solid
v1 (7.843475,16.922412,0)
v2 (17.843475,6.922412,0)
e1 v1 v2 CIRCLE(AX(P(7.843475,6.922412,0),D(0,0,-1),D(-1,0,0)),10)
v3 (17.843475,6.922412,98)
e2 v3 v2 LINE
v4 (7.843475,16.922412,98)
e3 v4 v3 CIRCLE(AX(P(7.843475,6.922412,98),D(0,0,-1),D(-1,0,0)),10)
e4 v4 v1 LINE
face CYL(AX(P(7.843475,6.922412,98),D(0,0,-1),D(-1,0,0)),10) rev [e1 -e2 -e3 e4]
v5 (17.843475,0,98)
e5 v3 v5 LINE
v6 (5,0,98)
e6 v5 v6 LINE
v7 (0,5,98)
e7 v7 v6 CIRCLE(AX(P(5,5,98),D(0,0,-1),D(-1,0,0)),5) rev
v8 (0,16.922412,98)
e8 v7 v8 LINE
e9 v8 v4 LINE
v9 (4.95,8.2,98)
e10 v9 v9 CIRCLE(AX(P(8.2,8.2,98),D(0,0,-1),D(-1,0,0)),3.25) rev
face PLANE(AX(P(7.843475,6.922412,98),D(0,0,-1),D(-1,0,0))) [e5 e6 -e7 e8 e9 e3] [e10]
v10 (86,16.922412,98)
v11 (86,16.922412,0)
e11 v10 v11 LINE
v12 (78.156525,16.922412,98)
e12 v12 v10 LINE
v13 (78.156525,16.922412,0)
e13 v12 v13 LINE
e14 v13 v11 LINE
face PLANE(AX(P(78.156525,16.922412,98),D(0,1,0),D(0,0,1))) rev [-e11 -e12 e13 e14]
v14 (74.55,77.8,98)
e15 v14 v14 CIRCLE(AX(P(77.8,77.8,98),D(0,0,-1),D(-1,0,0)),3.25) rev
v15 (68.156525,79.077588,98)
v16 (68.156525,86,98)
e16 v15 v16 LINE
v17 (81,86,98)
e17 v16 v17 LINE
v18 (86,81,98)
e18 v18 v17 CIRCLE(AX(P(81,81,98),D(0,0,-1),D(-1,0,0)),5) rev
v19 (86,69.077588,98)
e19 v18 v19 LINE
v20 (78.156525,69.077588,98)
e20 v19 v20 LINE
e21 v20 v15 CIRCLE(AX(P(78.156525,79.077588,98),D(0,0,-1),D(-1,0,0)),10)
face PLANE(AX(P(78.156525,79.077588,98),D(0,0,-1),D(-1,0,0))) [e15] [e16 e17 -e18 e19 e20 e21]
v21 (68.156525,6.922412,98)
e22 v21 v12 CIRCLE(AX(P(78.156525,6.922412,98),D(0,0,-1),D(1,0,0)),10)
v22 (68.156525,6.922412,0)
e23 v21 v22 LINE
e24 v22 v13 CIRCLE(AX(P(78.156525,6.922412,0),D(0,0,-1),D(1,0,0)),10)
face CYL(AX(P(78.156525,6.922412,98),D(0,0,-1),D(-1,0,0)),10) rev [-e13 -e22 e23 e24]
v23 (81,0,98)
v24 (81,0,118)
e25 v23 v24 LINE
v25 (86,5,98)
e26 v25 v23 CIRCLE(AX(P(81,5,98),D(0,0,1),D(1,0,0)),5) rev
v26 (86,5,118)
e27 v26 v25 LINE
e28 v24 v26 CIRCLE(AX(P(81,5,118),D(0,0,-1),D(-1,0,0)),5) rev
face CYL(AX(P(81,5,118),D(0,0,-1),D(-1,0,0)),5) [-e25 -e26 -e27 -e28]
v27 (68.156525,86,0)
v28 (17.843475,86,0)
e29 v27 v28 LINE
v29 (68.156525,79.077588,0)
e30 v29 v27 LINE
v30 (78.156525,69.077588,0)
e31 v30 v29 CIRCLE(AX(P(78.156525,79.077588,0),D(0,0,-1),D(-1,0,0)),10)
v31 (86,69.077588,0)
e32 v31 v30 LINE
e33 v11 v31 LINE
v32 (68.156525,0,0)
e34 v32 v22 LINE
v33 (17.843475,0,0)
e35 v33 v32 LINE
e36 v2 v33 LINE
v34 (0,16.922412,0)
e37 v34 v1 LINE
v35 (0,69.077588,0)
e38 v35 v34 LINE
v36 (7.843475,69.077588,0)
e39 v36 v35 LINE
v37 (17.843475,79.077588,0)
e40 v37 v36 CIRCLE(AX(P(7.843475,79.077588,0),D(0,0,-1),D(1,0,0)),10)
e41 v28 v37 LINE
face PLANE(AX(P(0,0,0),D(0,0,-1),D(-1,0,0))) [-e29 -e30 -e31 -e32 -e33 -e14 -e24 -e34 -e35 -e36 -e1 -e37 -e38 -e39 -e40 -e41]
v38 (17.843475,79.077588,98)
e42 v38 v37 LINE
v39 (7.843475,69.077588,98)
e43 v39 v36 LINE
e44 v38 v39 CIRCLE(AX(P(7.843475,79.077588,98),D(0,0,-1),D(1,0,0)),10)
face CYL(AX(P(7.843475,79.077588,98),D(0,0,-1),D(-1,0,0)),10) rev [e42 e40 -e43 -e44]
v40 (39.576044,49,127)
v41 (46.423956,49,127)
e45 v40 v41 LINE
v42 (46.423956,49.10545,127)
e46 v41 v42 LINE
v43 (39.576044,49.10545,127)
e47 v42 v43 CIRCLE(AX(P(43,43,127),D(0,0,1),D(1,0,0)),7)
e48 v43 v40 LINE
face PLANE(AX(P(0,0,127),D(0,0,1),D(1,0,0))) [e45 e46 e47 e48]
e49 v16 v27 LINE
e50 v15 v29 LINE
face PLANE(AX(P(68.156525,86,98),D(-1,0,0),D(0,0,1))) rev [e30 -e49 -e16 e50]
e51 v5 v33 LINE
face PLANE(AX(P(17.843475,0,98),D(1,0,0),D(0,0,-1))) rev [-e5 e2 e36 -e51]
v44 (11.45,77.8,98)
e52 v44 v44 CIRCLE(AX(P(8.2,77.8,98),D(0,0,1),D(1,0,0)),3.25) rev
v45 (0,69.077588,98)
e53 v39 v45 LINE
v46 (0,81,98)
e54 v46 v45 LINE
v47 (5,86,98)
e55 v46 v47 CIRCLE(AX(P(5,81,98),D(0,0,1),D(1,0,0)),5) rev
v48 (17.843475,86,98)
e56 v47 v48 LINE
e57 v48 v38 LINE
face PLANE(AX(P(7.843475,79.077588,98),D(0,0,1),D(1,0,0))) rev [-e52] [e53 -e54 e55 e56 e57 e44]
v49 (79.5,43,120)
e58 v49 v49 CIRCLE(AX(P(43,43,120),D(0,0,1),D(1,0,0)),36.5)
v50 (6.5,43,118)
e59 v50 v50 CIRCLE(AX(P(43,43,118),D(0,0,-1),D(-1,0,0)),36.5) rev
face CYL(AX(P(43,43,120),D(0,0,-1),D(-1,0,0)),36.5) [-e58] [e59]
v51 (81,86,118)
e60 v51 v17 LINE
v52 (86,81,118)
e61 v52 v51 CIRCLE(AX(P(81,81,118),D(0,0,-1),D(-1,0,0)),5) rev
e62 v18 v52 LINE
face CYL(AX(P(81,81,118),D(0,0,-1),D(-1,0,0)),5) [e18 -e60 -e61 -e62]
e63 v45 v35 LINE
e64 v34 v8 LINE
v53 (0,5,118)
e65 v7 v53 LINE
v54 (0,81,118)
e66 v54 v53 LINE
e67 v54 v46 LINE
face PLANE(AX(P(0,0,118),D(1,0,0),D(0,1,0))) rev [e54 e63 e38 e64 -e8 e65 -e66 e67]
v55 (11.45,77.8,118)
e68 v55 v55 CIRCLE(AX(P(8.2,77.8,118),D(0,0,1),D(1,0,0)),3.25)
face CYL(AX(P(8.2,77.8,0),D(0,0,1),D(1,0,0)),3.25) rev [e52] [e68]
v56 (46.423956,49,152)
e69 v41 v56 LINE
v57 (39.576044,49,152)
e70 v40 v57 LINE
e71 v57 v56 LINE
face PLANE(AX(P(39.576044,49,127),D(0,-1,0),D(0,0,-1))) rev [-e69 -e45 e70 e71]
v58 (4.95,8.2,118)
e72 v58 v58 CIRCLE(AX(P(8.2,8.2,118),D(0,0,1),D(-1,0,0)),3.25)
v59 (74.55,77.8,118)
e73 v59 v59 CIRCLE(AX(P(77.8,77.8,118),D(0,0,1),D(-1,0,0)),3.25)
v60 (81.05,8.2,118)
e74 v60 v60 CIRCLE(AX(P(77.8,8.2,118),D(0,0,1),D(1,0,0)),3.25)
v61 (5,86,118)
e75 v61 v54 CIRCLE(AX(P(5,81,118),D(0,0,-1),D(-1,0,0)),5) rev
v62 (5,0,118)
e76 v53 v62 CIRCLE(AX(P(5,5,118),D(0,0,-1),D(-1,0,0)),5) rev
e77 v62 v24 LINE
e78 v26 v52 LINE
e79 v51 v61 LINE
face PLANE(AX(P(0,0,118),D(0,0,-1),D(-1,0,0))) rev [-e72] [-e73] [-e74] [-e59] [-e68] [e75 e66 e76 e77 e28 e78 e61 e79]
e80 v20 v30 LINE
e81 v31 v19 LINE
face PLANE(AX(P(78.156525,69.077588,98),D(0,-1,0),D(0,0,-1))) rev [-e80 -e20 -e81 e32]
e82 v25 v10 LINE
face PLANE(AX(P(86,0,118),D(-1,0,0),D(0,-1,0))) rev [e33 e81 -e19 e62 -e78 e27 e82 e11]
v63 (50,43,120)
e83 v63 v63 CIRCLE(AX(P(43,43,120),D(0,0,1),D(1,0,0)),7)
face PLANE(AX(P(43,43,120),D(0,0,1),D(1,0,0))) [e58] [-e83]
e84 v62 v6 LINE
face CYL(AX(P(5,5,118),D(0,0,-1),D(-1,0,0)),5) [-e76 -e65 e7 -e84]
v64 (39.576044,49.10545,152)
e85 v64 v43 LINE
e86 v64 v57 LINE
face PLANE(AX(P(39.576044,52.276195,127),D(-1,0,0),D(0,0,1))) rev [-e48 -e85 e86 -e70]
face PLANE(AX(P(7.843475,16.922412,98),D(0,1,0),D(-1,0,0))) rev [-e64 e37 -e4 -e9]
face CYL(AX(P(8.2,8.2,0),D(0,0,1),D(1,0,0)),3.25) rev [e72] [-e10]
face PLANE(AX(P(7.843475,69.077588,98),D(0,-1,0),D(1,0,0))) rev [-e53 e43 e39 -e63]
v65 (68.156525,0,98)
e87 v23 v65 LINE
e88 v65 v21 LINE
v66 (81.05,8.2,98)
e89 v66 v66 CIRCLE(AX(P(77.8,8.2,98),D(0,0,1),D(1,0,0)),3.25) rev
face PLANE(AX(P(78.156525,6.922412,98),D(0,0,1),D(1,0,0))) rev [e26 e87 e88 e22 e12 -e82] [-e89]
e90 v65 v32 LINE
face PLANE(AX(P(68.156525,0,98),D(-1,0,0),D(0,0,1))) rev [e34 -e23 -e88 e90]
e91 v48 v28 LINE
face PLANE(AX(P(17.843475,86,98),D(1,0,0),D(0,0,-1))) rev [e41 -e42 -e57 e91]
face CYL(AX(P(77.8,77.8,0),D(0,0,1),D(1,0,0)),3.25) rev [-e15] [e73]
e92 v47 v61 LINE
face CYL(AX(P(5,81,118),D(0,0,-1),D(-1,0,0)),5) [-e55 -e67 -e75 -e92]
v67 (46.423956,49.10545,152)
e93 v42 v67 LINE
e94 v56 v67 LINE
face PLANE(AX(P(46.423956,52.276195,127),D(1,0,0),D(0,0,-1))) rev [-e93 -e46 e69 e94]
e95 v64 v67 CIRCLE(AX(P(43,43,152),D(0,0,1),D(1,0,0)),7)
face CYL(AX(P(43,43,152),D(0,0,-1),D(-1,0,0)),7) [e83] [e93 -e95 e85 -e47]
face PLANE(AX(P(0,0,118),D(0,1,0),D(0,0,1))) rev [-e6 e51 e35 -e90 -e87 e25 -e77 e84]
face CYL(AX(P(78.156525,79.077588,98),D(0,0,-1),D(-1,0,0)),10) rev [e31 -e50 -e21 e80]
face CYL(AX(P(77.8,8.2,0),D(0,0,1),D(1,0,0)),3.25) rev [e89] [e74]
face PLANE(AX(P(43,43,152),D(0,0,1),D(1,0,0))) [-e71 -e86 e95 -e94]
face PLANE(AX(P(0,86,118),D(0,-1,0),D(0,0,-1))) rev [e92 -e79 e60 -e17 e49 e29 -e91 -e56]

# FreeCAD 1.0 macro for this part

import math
import FreeCAD as App
import Part
import Sketcher


def edges_at(feature, points):
    """Names of the edges that pass closest to the given points."""
    edges = feature.Shape.Edges
    near = lambda p: min(range(len(edges)), key=lambda i: edges[i].distToShape(Part.Vertex(*p))[0])
    return sorted({f"Edge{near(p) + 1}" for p in points})


def add_polygon(sketch, points):
    """Adds a closed chain of lines whose ends are joined by coincident constraints."""
    first, n = sketch.GeometryCount, len(points)
    for a, b in zip(points, points[1:] + points[:1]):
        sketch.addGeometry(Part.LineSegment(App.Vector(*a, 0), App.Vector(*b, 0)), False)
    for i in range(n):
        sketch.addConstraint(Sketcher.Constraint("Coincident", first + i, 2, first + (i + 1) % n, 1))

doc = App.newDocument("Part")
body = doc.addObject("PartDesign::Body", "Body")

sketch1 = doc.addObject("Sketcher::SketchObject", "Sketch")
body.addObject(sketch1)
sketch1.AttachmentSupport = (doc.XY_Plane, [""])
sketch1.MapMode = "FlatFace"
add_polygon(sketch1, [(0, 86), (0, 0), (86, 0), (86, 86)])
sketch1.addConstraint(Sketcher.Constraint("Vertical", 0))
sketch1.addConstraint(Sketcher.Constraint("Horizontal", 1))
sketch1.addConstraint(Sketcher.Constraint("Vertical", 2))
sketch1.addConstraint(Sketcher.Constraint("Horizontal", 3))
sketch1.addConstraint(Sketcher.Constraint("Coincident", 0, 2, -1, 1))
sketch1.addConstraint(Sketcher.Constraint("Equal", 3, 0))
sketch1.addConstraint(Sketcher.Constraint("DistanceX", 1, 1, 1, 2, 86.0))
pad1 = doc.addObject("PartDesign::Pad", "Pad")
body.addObject(pad1)
pad1.Profile = sketch1
pad1.Length = 118
doc.recompute()

fillet = doc.addObject("PartDesign::Fillet", "Fillet")
body.addObject(fillet)
fillet.Base = (pad1, edges_at(pad1, [
    (0, 86, 59),
    (86, 86, 59),
    (86, 0, 59),
    (0, 0, 59),
]))
fillet.Radius = 5

sketch2 = doc.addObject("Sketcher::SketchObject", "Sketch001")
body.addObject(sketch2)
sketch2.AttachmentSupport = (doc.XY_Plane, [""])
sketch2.MapMode = "FlatFace"
sketch2.AttachmentOffset = App.Placement(App.Vector(0, 0, 118), App.Rotation())
sketch2.addGeometry(Part.Circle(App.Vector(43, 43, 0), App.Vector(0, 0, 1), 36.5), False)
sketch2.addConstraint(Sketcher.Constraint("Diameter", 0, 73.0))
sketch2.addConstraint(Sketcher.Constraint("DistanceX", -1, 1, 0, 3, 43.0))
sketch2.addConstraint(Sketcher.Constraint("DistanceY", -1, 1, 0, 3, 43.0))
pad2 = doc.addObject("PartDesign::Pad", "Pad001")
body.addObject(pad2)
pad2.Profile = sketch2
pad2.Length = 2

sketch3 = doc.addObject("Sketcher::SketchObject", "Sketch002")
body.addObject(sketch3)
sketch3.AttachmentSupport = (doc.XY_Plane, [""])
sketch3.MapMode = "FlatFace"
sketch3.AttachmentOffset = App.Placement(App.Vector(0, 0, 120), App.Rotation())
sketch3.addGeometry(Part.Circle(App.Vector(43, 43, 0), App.Vector(0, 0, 1), 7), False)
sketch3.addConstraint(Sketcher.Constraint("Diameter", 0, 14.0))
sketch3.addConstraint(Sketcher.Constraint("DistanceX", -1, 1, 0, 3, 43.0))
sketch3.addConstraint(Sketcher.Constraint("DistanceY", -1, 1, 0, 3, 43.0))
pad3 = doc.addObject("PartDesign::Pad", "Pad002")
body.addObject(pad3)
pad3.Profile = sketch3
pad3.Length = 32

sketch4 = doc.addObject("Sketcher::SketchObject", "Sketch003")
body.addObject(sketch4)
sketch4.AttachmentSupport = (doc.XY_Plane, [""])
sketch4.MapMode = "FlatFace"
sketch4.AttachmentOffset = App.Placement(App.Vector(0, 0, 152), App.Rotation())
add_polygon(sketch4, [(39.576044, 52.276195), (39.576044, 49), (46.423956, 49), (46.423956, 52.276195)])
sketch4.addConstraint(Sketcher.Constraint("Vertical", 0))
sketch4.addConstraint(Sketcher.Constraint("Horizontal", 1))
sketch4.addConstraint(Sketcher.Constraint("Vertical", 2))
sketch4.addConstraint(Sketcher.Constraint("Horizontal", 3))
sketch4.addConstraint(Sketcher.Constraint("DistanceY", -1, 1, 0, 2, 49.0))
sketch4.addConstraint(Sketcher.Constraint("DistanceX", 1, 1, 1, 2, 6.847912))
sketch4.addConstraint(Sketcher.Constraint("DistanceY", 0, 2, 0, 1, 3.276195))
sketch4.addConstraint(Sketcher.Constraint("DistanceX", -1, 1, 0, 2, 39.576044))
pocket1 = doc.addObject("PartDesign::Pocket", "Pocket")
body.addObject(pocket1)
pocket1.Profile = sketch4
pocket1.Length = 25

sketch5 = doc.addObject("Sketcher::SketchObject", "Sketch004")
body.addObject(sketch5)
sketch5.AttachmentSupport = (doc.XY_Plane, [""])
sketch5.MapMode = "FlatFace"
sketch5.AttachmentOffset = App.Placement(App.Vector(0, 0, 118), App.Rotation())
sketch5.addGeometry(Part.Circle(App.Vector(8.2, 77.8, 0), App.Vector(0, 0, 1), 3.25), False)
sketch5.addGeometry(Part.Circle(App.Vector(77.8, 77.8, 0), App.Vector(0, 0, 1), 3.25), False)
sketch5.addGeometry(Part.Circle(App.Vector(77.8, 8.2, 0), App.Vector(0, 0, 1), 3.25), False)
sketch5.addGeometry(Part.Circle(App.Vector(8.2, 8.2, 0), App.Vector(0, 0, 1), 3.25), False)
sketch5.addConstraint(Sketcher.Constraint("Equal", 0, 1))
sketch5.addConstraint(Sketcher.Constraint("Equal", 1, 2))
sketch5.addConstraint(Sketcher.Constraint("Equal", 2, 3))
sketch5.addConstraint(Sketcher.Constraint("Horizontal", 0, 3, 1, 3))
sketch5.addConstraint(Sketcher.Constraint("Horizontal", 2, 3, 3, 3))
sketch5.addConstraint(Sketcher.Constraint("Vertical", 1, 3, 2, 3))
sketch5.addConstraint(Sketcher.Constraint("Vertical", 0, 3, 3, 3))
sketch5.addConstraint(Sketcher.Constraint("Diameter", 0, 6.5))
sketch5.addConstraint(Sketcher.Constraint("DistanceX", -1, 1, 0, 3, 8.2))
sketch5.addConstraint(Sketcher.Constraint("DistanceY", -1, 1, 0, 3, 77.8))
sketch5.addConstraint(Sketcher.Constraint("DistanceX", -1, 1, 1, 3, 77.8))
sketch5.addConstraint(Sketcher.Constraint("DistanceY", -1, 1, 2, 3, 8.2))
pocket2 = doc.addObject("PartDesign::Pocket", "Pocket001")
body.addObject(pocket2)
pocket2.Profile = sketch5
pocket2.Type = "ThroughAll"

sketch6 = doc.addObject("Sketcher::SketchObject", "Sketch005")
body.addObject(sketch6)
sketch6.AttachmentSupport = (doc.XY_Plane, [""])
sketch6.MapMode = "FlatFace"
sketch6.addGeometry(Part.LineSegment(App.Vector(68.156525, 86, 0), App.Vector(93.025218, 86, 0)), False)
sketch6.addGeometry(Part.LineSegment(App.Vector(93.025218, 86, 0), App.Vector(93.025218, 69.077588, 0)), False)
sketch6.addGeometry(Part.LineSegment(App.Vector(93.025218, 69.077588, 0), App.Vector(78.156525, 69.077588, 0)), False)
sketch6.addGeometry(Part.ArcOfCircle(Part.Circle(App.Vector(78.156525, 79.077588, 0), App.Vector(0, 0, 1), 10), math.radians(-180), math.radians(-90)), False)
sketch6.addGeometry(Part.LineSegment(App.Vector(68.156525, 79.077588, 0), App.Vector(68.156525, 86, 0)), False)
sketch6.addGeometry(Part.LineSegment(App.Vector(17.843475, 86, 0), App.Vector(17.843475, 79.077588, 0)), False)
sketch6.addGeometry(Part.ArcOfCircle(Part.Circle(App.Vector(7.843475, 79.077588, 0), App.Vector(0, 0, 1), 10), math.radians(-90), math.radians(0)), False)
sketch6.addGeometry(Part.LineSegment(App.Vector(7.843475, 69.077588, 0), App.Vector(-7.025218, 69.077588, 0)), False)
sketch6.addGeometry(Part.LineSegment(App.Vector(-7.025218, 69.077588, 0), App.Vector(-7.025218, 86, 0)), False)
sketch6.addGeometry(Part.LineSegment(App.Vector(-7.025218, 86, 0), App.Vector(17.843475, 86, 0)), False)
sketch6.addGeometry(Part.LineSegment(App.Vector(-7.025218, 16.922412, 0), App.Vector(7.843475, 16.922412, 0)), False)
sketch6.addGeometry(Part.ArcOfCircle(Part.Circle(App.Vector(7.843475, 6.922412, 0), App.Vector(0, 0, 1), 10), math.radians(0), math.radians(90)), False)
sketch6.addGeometry(Part.LineSegment(App.Vector(17.843475, 6.922412, 0), App.Vector(17.843475, 0, 0)), False)
sketch6.addGeometry(Part.LineSegment(App.Vector(17.843475, 0, 0), App.Vector(-7.025218, 0, 0)), False)
sketch6.addGeometry(Part.LineSegment(App.Vector(-7.025218, 0, 0), App.Vector(-7.025218, 16.922412, 0)), False)
sketch6.addGeometry(Part.LineSegment(App.Vector(68.156525, 0, 0), App.Vector(68.156525, 6.922412, 0)), False)
sketch6.addGeometry(Part.ArcOfCircle(Part.Circle(App.Vector(78.156525, 6.922412, 0), App.Vector(0, 0, 1), 10), math.radians(90), math.radians(180)), False)
sketch6.addGeometry(Part.LineSegment(App.Vector(78.156525, 16.922412, 0), App.Vector(93.025218, 16.922412, 0)), False)
sketch6.addGeometry(Part.LineSegment(App.Vector(93.025218, 16.922412, 0), App.Vector(93.025218, 0, 0)), False)
sketch6.addGeometry(Part.LineSegment(App.Vector(93.025218, 0, 0), App.Vector(68.156525, 0, 0)), False)
sketch6.addConstraint(Sketcher.Constraint("Coincident", 0, 2, 1, 1))
sketch6.addConstraint(Sketcher.Constraint("Coincident", 1, 2, 2, 1))
sketch6.addConstraint(Sketcher.Constraint("Tangent", 2, 2, 3, 2))
sketch6.addConstraint(Sketcher.Constraint("Tangent", 3, 1, 4, 1))
sketch6.addConstraint(Sketcher.Constraint("Coincident", 4, 2, 0, 1))
sketch6.addConstraint(Sketcher.Constraint("Tangent", 5, 2, 6, 2))
sketch6.addConstraint(Sketcher.Constraint("Tangent", 6, 1, 7, 1))
sketch6.addConstraint(Sketcher.Constraint("Coincident", 7, 2, 8, 1))
sketch6.addConstraint(Sketcher.Constraint("Coincident", 8, 2, 9, 1))
sketch6.addConstraint(Sketcher.Constraint("Coincident", 9, 2, 5, 1))
sketch6.addConstraint(Sketcher.Constraint("Tangent", 10, 2, 11, 2))
sketch6.addConstraint(Sketcher.Constraint("Tangent", 11, 1, 12, 1))
sketch6.addConstraint(Sketcher.Constraint("Coincident", 12, 2, 13, 1))
sketch6.addConstraint(Sketcher.Constraint("Coincident", 13, 2, 14, 1))
sketch6.addConstraint(Sketcher.Constraint("Coincident", 14, 2, 10, 1))
sketch6.addConstraint(Sketcher.Constraint("Tangent", 15, 2, 16, 2))
sketch6.addConstraint(Sketcher.Constraint("Tangent", 16, 1, 17, 1))
sketch6.addConstraint(Sketcher.Constraint("Coincident", 17, 2, 18, 1))
sketch6.addConstraint(Sketcher.Constraint("Coincident", 18, 2, 19, 1))
sketch6.addConstraint(Sketcher.Constraint("Coincident", 19, 2, 15, 1))
sketch6.addConstraint(Sketcher.Constraint("Horizontal", 0))
sketch6.addConstraint(Sketcher.Constraint("Vertical", 1))
sketch6.addConstraint(Sketcher.Constraint("Horizontal", 2))
sketch6.addConstraint(Sketcher.Constraint("Vertical", 4))
sketch6.addConstraint(Sketcher.Constraint("Vertical", 5))
sketch6.addConstraint(Sketcher.Constraint("Horizontal", 7))
sketch6.addConstraint(Sketcher.Constraint("Vertical", 8))
sketch6.addConstraint(Sketcher.Constraint("Horizontal", 9))
sketch6.addConstraint(Sketcher.Constraint("Horizontal", 10))
sketch6.addConstraint(Sketcher.Constraint("Vertical", 12))
sketch6.addConstraint(Sketcher.Constraint("Horizontal", 13))
sketch6.addConstraint(Sketcher.Constraint("Vertical", 14))
sketch6.addConstraint(Sketcher.Constraint("Vertical", 15))
sketch6.addConstraint(Sketcher.Constraint("Horizontal", 17))
sketch6.addConstraint(Sketcher.Constraint("Vertical", 18))
sketch6.addConstraint(Sketcher.Constraint("Horizontal", 19))
sketch6.addConstraint(Sketcher.Constraint("Equal", 3, 6))
sketch6.addConstraint(Sketcher.Constraint("Equal", 6, 11))
sketch6.addConstraint(Sketcher.Constraint("Equal", 11, 16))
sketch6.addConstraint(Sketcher.Constraint("PointOnObject", 12, 2, -1))
sketch6.addConstraint(Sketcher.Constraint("PointOnObject", 18, 2, -1))
sketch6.addConstraint(Sketcher.Constraint("Horizontal", 3, 3, 6, 3))
sketch6.addConstraint(Sketcher.Constraint("Horizontal", 11, 3, 16, 3))
sketch6.addConstraint(Sketcher.Constraint("Horizontal", 4, 2, 8, 2))
sketch6.addConstraint(Sketcher.Constraint("Vertical", 6, 3, 11, 3))
sketch6.addConstraint(Sketcher.Constraint("Vertical", 3, 3, 16, 3))
sketch6.addConstraint(Sketcher.Constraint("Vertical", 8, 2, 13, 2))
sketch6.addConstraint(Sketcher.Constraint("Vertical", 1, 2, 17, 2))
sketch6.addConstraint(Sketcher.Constraint("Equal", 2, 7))
sketch6.addConstraint(Sketcher.Constraint("Equal", 5, 12))
sketch6.addConstraint(Sketcher.Constraint("Radius", 3, 10.0))
sketch6.addConstraint(Sketcher.Constraint("DistanceY", -1, 1, 0, 2, 86.0))
sketch6.addConstraint(Sketcher.Constraint("DistanceX", 0, 1, 0, 2, 24.868693))
sketch6.addConstraint(Sketcher.Constraint("DistanceY", 1, 2, 1, 1, 16.922412))
sketch6.addConstraint(Sketcher.Constraint("DistanceX", -1, 1, 0, 2, 93.025218))
sketch6.addConstraint(Sketcher.Constraint("DistanceX", 7, 2, -1, 1, 7.025218))
pocket3 = doc.addObject("PartDesign::Pocket", "Pocket002")
body.addObject(pocket3)
pocket3.Profile = sketch6
pocket3.Length = 98
pocket3.Reversed = True

doc.recompute()
